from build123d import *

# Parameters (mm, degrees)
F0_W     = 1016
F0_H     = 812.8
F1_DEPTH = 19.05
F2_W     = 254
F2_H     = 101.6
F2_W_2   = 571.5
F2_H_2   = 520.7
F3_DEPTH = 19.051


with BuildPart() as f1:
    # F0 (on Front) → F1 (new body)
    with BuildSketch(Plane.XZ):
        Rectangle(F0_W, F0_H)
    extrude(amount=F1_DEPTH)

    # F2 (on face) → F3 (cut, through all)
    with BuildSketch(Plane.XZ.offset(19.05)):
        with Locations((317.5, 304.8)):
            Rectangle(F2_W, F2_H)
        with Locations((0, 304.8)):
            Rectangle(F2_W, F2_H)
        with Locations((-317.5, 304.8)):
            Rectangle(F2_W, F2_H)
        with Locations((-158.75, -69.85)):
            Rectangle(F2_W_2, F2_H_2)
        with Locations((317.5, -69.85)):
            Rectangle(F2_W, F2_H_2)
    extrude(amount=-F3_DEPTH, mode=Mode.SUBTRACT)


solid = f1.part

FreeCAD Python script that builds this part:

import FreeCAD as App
import Part
import Sketcher
Q = App.Units.Quantity

doc = App.newDocument("Part")
body = doc.addObject("PartDesign::Body", "Body")

# Sketch on XZ plane
sketch1 = body.newObject("Sketcher::SketchObject", "Sketch")
sketch1.AttachmentSupport = (doc.getObject("XZ_Plane"), [""])
sketch1.MapMode = "FlatFace"
sketch1.addGeometry(Part.LineSegment(App.Vector(-508, 406, 0), App.Vector(-508, -406, 0)), False)
sketch1.addGeometry(Part.LineSegment(App.Vector(-508, -406, 0), App.Vector(508, -406, 0)), False)
sketch1.addGeometry(Part.LineSegment(App.Vector(508, -406, 0), App.Vector(508, 406, 0)), False)
sketch1.addGeometry(Part.LineSegment(App.Vector(508, 406, 0), App.Vector(-508, 406, 0)), False)
sketch1.addConstraint(Sketcher.Constraint("Coincident", 0, 2, 1, 1))
sketch1.addConstraint(Sketcher.Constraint("Coincident", 1, 2, 2, 1))
sketch1.addConstraint(Sketcher.Constraint("Coincident", 2, 2, 3, 1))
sketch1.addConstraint(Sketcher.Constraint("Coincident", 3, 2, 0, 1))
sketch1.addConstraint(Sketcher.Constraint("Vertical", 0))
sketch1.addConstraint(Sketcher.Constraint("Horizontal", 1))
sketch1.addConstraint(Sketcher.Constraint("Vertical", 2))
sketch1.addConstraint(Sketcher.Constraint("Horizontal", 3))
sketch1.addConstraint(Sketcher.Constraint("Symmetric", 0, 2, 2, 2, -1, 1))
sketch1.addConstraint(Sketcher.Constraint("DistanceX", 1, 1, 1, 2, Q("40 in")))
sketch1.addConstraint(Sketcher.Constraint("DistanceY", 0, 2, 0, 1, Q("32 in")))
pad1 = body.newObject("PartDesign::Pad", "Pad")
pad1.Profile = sketch1
pad1.Length = Q("0.75 in")

# Sketch on XZ plane
sketch2 = body.newObject("Sketcher::SketchObject", "Sketch001")
sketch2.AttachmentSupport = (doc.getObject("XZ_Plane"), [""])
sketch2.MapMode = "FlatFace"
sketch2.AttachmentOffset = App.Placement(App.Vector(0, 0, 0.75 * 25.4), App.Rotation())
sketch2.addGeometry(Part.LineSegment(App.Vector(190, 356, 0), App.Vector(190, 254, 0)), False)
sketch2.addGeometry(Part.LineSegment(App.Vector(190, 254, 0), App.Vector(444, 254, 0)), False)
sketch2.addGeometry(Part.LineSegment(App.Vector(444, 254, 0), App.Vector(444, 356, 0)), False)
sketch2.addGeometry(Part.LineSegment(App.Vector(444, 356, 0), App.Vector(190, 356, 0)), False)
sketch2.addGeometry(Part.LineSegment(App.Vector(-127, 356, 0), App.Vector(-127, 254, 0)), False)
sketch2.addGeometry(Part.LineSegment(App.Vector(-127, 254, 0), App.Vector(127, 254, 0)), False)
sketch2.addGeometry(Part.LineSegment(App.Vector(127, 254, 0), App.Vector(127, 356, 0)), False)
sketch2.addGeometry(Part.LineSegment(App.Vector(127, 356, 0), App.Vector(-127, 356, 0)), False)
sketch2.addGeometry(Part.LineSegment(App.Vector(-444, 356, 0), App.Vector(-444, 254, 0)), False)
sketch2.addGeometry(Part.LineSegment(App.Vector(-444, 254, 0), App.Vector(-190, 254, 0)), False)
sketch2.addGeometry(Part.LineSegment(App.Vector(-190, 254, 0), App.Vector(-190, 356, 0)), False)
sketch2.addGeometry(Part.LineSegment(App.Vector(-190, 356, 0), App.Vector(-444, 356, 0)), False)
sketch2.addGeometry(Part.LineSegment(App.Vector(-444, 190, 0), App.Vector(-444, -330, 0)), False)
sketch2.addGeometry(Part.LineSegment(App.Vector(-444, -330, 0), App.Vector(127, -330, 0)), False)
sketch2.addGeometry(Part.LineSegment(App.Vector(127, -330, 0), App.Vector(127, 190, 0)), False)
sketch2.addGeometry(Part.LineSegment(App.Vector(127, 190, 0), App.Vector(-444, 190, 0)), False)
sketch2.addGeometry(Part.LineSegment(App.Vector(190, 190, 0), App.Vector(190, -330, 0)), False)
sketch2.addGeometry(Part.LineSegment(App.Vector(190, -330, 0), App.Vector(444, -330, 0)), False)
sketch2.addGeometry(Part.LineSegment(App.Vector(444, -330, 0), App.Vector(444, 190, 0)), False)
sketch2.addGeometry(Part.LineSegment(App.Vector(444, 190, 0), App.Vector(190, 190, 0)), False)
sketch2.addConstraint(Sketcher.Constraint("Coincident", 0, 2, 1, 1))
sketch2.addConstraint(Sketcher.Constraint("Coincident", 1, 2, 2, 1))
sketch2.addConstraint(Sketcher.Constraint("Coincident", 2, 2, 3, 1))
sketch2.addConstraint(Sketcher.Constraint("Coincident", 3, 2, 0, 1))
sketch2.addConstraint(Sketcher.Constraint("Coincident", 4, 2, 5, 1))
sketch2.addConstraint(Sketcher.Constraint("Coincident", 5, 2, 6, 1))
sketch2.addConstraint(Sketcher.Constraint("Coincident", 6, 2, 7, 1))
sketch2.addConstraint(Sketcher.Constraint("Coincident", 7, 2, 4, 1))
sketch2.addConstraint(Sketcher.Constraint("Coincident", 8, 2, 9, 1))
sketch2.addConstraint(Sketcher.Constraint("Coincident", 9, 2, 10, 1))
sketch2.addConstraint(Sketcher.Constraint("Coincident", 10, 2, 11, 1))
sketch2.addConstraint(Sketcher.Constraint("Coincident", 11, 2, 8, 1))
sketch2.addConstraint(Sketcher.Constraint("Coincident", 12, 2, 13, 1))
sketch2.addConstraint(Sketcher.Constraint("Coincident", 13, 2, 14, 1))
sketch2.addConstraint(Sketcher.Constraint("Coincident", 14, 2, 15, 1))
sketch2.addConstraint(Sketcher.Constraint("Coincident", 15, 2, 12, 1))
sketch2.addConstraint(Sketcher.Constraint("Coincident", 16, 2, 17, 1))
sketch2.addConstraint(Sketcher.Constraint("Coincident", 17, 2, 18, 1))
sketch2.addConstraint(Sketcher.Constraint("Coincident", 18, 2, 19, 1))
sketch2.addConstraint(Sketcher.Constraint("Coincident", 19, 2, 16, 1))
sketch2.addConstraint(Sketcher.Constraint("Vertical", 0))
sketch2.addConstraint(Sketcher.Constraint("Horizontal", 1))
sketch2.addConstraint(Sketcher.Constraint("Vertical", 2))
sketch2.addConstraint(Sketcher.Constraint("Horizontal", 3))
sketch2.addConstraint(Sketcher.Constraint("Vertical", 4))
sketch2.addConstraint(Sketcher.Constraint("Horizontal", 5))
sketch2.addConstraint(Sketcher.Constraint("Vertical", 6))
sketch2.addConstraint(Sketcher.Constraint("Horizontal", 7))
sketch2.addConstraint(Sketcher.Constraint("Vertical", 8))
sketch2.addConstraint(Sketcher.Constraint("Horizontal", 9))
sketch2.addConstraint(Sketcher.Constraint("Vertical", 10))
sketch2.addConstraint(Sketcher.Constraint("Horizontal", 11))
sketch2.addConstraint(Sketcher.Constraint("Vertical", 12))
sketch2.addConstraint(Sketcher.Constraint("Horizontal", 13))
sketch2.addConstraint(Sketcher.Constraint("Vertical", 14))
sketch2.addConstraint(Sketcher.Constraint("Horizontal", 15))
sketch2.addConstraint(Sketcher.Constraint("Vertical", 16))
sketch2.addConstraint(Sketcher.Constraint("Horizontal", 17))
sketch2.addConstraint(Sketcher.Constraint("Vertical", 18))
sketch2.addConstraint(Sketcher.Constraint("Horizontal", 19))
sketch2.addConstraint(Sketcher.Constraint("Symmetric", 1, 2, 8, 2, -2))
sketch2.addConstraint(Sketcher.Constraint("Symmetric", 3, 2, 10, 2, -2))
sketch2.addConstraint(Sketcher.Constraint("Symmetric", 12, 2, 17, 2, -2))
sketch2.addConstraint(Sketcher.Constraint("Horizontal", 1, 2, 4, 2))
sketch2.addConstraint(Sketcher.Constraint("Horizontal", 3, 2, 6, 2))
sketch2.addConstraint(Sketcher.Constraint("Horizontal", 15, 2, 18, 2))
sketch2.addConstraint(Sketcher.Constraint("Vertical", 11, 2, 12, 2))
sketch2.addConstraint(Sketcher.Constraint("Vertical", 6, 2, 13, 2))
sketch2.addConstraint(Sketcher.Constraint("Vertical", 3, 2, 16, 2))
sketch2.addConstraint(Sketcher.Constraint("Equal", 3, 5))
sketch2.addConstraint(Sketcher.Constraint("DistanceX", 1, 1, 1, 2, Q("10 in")))
sketch2.addConstraint(Sketcher.Constraint("DistanceY", 0, 2, 0, 1, Q("4 in")))
sketch2.addConstraint(Sketcher.Constraint("DistanceX", 13, 1, 13, 2, Q("22.5 in")))
sketch2.addConstraint(Sketcher.Constraint("DistanceY", 12, 2, 12, 1, Q("20.5 in")))
sketch2.addConstraint(Sketcher.Constraint("DistanceY", -1, 1, 0, 2, Q("10 in")))
sketch2.addConstraint(Sketcher.Constraint("DistanceX", 4, 2, -1, 1, Q("5 in")))
sketch2.addConstraint(Sketcher.Constraint("DistanceY", 12, 2, -1, 1, Q("13 in")))
pocket1 = body.newObject("PartDesign::Pocket", "Pocket")
pocket1.Profile = sketch2
pocket1.Type = "ThroughAll"

doc.recompute()
